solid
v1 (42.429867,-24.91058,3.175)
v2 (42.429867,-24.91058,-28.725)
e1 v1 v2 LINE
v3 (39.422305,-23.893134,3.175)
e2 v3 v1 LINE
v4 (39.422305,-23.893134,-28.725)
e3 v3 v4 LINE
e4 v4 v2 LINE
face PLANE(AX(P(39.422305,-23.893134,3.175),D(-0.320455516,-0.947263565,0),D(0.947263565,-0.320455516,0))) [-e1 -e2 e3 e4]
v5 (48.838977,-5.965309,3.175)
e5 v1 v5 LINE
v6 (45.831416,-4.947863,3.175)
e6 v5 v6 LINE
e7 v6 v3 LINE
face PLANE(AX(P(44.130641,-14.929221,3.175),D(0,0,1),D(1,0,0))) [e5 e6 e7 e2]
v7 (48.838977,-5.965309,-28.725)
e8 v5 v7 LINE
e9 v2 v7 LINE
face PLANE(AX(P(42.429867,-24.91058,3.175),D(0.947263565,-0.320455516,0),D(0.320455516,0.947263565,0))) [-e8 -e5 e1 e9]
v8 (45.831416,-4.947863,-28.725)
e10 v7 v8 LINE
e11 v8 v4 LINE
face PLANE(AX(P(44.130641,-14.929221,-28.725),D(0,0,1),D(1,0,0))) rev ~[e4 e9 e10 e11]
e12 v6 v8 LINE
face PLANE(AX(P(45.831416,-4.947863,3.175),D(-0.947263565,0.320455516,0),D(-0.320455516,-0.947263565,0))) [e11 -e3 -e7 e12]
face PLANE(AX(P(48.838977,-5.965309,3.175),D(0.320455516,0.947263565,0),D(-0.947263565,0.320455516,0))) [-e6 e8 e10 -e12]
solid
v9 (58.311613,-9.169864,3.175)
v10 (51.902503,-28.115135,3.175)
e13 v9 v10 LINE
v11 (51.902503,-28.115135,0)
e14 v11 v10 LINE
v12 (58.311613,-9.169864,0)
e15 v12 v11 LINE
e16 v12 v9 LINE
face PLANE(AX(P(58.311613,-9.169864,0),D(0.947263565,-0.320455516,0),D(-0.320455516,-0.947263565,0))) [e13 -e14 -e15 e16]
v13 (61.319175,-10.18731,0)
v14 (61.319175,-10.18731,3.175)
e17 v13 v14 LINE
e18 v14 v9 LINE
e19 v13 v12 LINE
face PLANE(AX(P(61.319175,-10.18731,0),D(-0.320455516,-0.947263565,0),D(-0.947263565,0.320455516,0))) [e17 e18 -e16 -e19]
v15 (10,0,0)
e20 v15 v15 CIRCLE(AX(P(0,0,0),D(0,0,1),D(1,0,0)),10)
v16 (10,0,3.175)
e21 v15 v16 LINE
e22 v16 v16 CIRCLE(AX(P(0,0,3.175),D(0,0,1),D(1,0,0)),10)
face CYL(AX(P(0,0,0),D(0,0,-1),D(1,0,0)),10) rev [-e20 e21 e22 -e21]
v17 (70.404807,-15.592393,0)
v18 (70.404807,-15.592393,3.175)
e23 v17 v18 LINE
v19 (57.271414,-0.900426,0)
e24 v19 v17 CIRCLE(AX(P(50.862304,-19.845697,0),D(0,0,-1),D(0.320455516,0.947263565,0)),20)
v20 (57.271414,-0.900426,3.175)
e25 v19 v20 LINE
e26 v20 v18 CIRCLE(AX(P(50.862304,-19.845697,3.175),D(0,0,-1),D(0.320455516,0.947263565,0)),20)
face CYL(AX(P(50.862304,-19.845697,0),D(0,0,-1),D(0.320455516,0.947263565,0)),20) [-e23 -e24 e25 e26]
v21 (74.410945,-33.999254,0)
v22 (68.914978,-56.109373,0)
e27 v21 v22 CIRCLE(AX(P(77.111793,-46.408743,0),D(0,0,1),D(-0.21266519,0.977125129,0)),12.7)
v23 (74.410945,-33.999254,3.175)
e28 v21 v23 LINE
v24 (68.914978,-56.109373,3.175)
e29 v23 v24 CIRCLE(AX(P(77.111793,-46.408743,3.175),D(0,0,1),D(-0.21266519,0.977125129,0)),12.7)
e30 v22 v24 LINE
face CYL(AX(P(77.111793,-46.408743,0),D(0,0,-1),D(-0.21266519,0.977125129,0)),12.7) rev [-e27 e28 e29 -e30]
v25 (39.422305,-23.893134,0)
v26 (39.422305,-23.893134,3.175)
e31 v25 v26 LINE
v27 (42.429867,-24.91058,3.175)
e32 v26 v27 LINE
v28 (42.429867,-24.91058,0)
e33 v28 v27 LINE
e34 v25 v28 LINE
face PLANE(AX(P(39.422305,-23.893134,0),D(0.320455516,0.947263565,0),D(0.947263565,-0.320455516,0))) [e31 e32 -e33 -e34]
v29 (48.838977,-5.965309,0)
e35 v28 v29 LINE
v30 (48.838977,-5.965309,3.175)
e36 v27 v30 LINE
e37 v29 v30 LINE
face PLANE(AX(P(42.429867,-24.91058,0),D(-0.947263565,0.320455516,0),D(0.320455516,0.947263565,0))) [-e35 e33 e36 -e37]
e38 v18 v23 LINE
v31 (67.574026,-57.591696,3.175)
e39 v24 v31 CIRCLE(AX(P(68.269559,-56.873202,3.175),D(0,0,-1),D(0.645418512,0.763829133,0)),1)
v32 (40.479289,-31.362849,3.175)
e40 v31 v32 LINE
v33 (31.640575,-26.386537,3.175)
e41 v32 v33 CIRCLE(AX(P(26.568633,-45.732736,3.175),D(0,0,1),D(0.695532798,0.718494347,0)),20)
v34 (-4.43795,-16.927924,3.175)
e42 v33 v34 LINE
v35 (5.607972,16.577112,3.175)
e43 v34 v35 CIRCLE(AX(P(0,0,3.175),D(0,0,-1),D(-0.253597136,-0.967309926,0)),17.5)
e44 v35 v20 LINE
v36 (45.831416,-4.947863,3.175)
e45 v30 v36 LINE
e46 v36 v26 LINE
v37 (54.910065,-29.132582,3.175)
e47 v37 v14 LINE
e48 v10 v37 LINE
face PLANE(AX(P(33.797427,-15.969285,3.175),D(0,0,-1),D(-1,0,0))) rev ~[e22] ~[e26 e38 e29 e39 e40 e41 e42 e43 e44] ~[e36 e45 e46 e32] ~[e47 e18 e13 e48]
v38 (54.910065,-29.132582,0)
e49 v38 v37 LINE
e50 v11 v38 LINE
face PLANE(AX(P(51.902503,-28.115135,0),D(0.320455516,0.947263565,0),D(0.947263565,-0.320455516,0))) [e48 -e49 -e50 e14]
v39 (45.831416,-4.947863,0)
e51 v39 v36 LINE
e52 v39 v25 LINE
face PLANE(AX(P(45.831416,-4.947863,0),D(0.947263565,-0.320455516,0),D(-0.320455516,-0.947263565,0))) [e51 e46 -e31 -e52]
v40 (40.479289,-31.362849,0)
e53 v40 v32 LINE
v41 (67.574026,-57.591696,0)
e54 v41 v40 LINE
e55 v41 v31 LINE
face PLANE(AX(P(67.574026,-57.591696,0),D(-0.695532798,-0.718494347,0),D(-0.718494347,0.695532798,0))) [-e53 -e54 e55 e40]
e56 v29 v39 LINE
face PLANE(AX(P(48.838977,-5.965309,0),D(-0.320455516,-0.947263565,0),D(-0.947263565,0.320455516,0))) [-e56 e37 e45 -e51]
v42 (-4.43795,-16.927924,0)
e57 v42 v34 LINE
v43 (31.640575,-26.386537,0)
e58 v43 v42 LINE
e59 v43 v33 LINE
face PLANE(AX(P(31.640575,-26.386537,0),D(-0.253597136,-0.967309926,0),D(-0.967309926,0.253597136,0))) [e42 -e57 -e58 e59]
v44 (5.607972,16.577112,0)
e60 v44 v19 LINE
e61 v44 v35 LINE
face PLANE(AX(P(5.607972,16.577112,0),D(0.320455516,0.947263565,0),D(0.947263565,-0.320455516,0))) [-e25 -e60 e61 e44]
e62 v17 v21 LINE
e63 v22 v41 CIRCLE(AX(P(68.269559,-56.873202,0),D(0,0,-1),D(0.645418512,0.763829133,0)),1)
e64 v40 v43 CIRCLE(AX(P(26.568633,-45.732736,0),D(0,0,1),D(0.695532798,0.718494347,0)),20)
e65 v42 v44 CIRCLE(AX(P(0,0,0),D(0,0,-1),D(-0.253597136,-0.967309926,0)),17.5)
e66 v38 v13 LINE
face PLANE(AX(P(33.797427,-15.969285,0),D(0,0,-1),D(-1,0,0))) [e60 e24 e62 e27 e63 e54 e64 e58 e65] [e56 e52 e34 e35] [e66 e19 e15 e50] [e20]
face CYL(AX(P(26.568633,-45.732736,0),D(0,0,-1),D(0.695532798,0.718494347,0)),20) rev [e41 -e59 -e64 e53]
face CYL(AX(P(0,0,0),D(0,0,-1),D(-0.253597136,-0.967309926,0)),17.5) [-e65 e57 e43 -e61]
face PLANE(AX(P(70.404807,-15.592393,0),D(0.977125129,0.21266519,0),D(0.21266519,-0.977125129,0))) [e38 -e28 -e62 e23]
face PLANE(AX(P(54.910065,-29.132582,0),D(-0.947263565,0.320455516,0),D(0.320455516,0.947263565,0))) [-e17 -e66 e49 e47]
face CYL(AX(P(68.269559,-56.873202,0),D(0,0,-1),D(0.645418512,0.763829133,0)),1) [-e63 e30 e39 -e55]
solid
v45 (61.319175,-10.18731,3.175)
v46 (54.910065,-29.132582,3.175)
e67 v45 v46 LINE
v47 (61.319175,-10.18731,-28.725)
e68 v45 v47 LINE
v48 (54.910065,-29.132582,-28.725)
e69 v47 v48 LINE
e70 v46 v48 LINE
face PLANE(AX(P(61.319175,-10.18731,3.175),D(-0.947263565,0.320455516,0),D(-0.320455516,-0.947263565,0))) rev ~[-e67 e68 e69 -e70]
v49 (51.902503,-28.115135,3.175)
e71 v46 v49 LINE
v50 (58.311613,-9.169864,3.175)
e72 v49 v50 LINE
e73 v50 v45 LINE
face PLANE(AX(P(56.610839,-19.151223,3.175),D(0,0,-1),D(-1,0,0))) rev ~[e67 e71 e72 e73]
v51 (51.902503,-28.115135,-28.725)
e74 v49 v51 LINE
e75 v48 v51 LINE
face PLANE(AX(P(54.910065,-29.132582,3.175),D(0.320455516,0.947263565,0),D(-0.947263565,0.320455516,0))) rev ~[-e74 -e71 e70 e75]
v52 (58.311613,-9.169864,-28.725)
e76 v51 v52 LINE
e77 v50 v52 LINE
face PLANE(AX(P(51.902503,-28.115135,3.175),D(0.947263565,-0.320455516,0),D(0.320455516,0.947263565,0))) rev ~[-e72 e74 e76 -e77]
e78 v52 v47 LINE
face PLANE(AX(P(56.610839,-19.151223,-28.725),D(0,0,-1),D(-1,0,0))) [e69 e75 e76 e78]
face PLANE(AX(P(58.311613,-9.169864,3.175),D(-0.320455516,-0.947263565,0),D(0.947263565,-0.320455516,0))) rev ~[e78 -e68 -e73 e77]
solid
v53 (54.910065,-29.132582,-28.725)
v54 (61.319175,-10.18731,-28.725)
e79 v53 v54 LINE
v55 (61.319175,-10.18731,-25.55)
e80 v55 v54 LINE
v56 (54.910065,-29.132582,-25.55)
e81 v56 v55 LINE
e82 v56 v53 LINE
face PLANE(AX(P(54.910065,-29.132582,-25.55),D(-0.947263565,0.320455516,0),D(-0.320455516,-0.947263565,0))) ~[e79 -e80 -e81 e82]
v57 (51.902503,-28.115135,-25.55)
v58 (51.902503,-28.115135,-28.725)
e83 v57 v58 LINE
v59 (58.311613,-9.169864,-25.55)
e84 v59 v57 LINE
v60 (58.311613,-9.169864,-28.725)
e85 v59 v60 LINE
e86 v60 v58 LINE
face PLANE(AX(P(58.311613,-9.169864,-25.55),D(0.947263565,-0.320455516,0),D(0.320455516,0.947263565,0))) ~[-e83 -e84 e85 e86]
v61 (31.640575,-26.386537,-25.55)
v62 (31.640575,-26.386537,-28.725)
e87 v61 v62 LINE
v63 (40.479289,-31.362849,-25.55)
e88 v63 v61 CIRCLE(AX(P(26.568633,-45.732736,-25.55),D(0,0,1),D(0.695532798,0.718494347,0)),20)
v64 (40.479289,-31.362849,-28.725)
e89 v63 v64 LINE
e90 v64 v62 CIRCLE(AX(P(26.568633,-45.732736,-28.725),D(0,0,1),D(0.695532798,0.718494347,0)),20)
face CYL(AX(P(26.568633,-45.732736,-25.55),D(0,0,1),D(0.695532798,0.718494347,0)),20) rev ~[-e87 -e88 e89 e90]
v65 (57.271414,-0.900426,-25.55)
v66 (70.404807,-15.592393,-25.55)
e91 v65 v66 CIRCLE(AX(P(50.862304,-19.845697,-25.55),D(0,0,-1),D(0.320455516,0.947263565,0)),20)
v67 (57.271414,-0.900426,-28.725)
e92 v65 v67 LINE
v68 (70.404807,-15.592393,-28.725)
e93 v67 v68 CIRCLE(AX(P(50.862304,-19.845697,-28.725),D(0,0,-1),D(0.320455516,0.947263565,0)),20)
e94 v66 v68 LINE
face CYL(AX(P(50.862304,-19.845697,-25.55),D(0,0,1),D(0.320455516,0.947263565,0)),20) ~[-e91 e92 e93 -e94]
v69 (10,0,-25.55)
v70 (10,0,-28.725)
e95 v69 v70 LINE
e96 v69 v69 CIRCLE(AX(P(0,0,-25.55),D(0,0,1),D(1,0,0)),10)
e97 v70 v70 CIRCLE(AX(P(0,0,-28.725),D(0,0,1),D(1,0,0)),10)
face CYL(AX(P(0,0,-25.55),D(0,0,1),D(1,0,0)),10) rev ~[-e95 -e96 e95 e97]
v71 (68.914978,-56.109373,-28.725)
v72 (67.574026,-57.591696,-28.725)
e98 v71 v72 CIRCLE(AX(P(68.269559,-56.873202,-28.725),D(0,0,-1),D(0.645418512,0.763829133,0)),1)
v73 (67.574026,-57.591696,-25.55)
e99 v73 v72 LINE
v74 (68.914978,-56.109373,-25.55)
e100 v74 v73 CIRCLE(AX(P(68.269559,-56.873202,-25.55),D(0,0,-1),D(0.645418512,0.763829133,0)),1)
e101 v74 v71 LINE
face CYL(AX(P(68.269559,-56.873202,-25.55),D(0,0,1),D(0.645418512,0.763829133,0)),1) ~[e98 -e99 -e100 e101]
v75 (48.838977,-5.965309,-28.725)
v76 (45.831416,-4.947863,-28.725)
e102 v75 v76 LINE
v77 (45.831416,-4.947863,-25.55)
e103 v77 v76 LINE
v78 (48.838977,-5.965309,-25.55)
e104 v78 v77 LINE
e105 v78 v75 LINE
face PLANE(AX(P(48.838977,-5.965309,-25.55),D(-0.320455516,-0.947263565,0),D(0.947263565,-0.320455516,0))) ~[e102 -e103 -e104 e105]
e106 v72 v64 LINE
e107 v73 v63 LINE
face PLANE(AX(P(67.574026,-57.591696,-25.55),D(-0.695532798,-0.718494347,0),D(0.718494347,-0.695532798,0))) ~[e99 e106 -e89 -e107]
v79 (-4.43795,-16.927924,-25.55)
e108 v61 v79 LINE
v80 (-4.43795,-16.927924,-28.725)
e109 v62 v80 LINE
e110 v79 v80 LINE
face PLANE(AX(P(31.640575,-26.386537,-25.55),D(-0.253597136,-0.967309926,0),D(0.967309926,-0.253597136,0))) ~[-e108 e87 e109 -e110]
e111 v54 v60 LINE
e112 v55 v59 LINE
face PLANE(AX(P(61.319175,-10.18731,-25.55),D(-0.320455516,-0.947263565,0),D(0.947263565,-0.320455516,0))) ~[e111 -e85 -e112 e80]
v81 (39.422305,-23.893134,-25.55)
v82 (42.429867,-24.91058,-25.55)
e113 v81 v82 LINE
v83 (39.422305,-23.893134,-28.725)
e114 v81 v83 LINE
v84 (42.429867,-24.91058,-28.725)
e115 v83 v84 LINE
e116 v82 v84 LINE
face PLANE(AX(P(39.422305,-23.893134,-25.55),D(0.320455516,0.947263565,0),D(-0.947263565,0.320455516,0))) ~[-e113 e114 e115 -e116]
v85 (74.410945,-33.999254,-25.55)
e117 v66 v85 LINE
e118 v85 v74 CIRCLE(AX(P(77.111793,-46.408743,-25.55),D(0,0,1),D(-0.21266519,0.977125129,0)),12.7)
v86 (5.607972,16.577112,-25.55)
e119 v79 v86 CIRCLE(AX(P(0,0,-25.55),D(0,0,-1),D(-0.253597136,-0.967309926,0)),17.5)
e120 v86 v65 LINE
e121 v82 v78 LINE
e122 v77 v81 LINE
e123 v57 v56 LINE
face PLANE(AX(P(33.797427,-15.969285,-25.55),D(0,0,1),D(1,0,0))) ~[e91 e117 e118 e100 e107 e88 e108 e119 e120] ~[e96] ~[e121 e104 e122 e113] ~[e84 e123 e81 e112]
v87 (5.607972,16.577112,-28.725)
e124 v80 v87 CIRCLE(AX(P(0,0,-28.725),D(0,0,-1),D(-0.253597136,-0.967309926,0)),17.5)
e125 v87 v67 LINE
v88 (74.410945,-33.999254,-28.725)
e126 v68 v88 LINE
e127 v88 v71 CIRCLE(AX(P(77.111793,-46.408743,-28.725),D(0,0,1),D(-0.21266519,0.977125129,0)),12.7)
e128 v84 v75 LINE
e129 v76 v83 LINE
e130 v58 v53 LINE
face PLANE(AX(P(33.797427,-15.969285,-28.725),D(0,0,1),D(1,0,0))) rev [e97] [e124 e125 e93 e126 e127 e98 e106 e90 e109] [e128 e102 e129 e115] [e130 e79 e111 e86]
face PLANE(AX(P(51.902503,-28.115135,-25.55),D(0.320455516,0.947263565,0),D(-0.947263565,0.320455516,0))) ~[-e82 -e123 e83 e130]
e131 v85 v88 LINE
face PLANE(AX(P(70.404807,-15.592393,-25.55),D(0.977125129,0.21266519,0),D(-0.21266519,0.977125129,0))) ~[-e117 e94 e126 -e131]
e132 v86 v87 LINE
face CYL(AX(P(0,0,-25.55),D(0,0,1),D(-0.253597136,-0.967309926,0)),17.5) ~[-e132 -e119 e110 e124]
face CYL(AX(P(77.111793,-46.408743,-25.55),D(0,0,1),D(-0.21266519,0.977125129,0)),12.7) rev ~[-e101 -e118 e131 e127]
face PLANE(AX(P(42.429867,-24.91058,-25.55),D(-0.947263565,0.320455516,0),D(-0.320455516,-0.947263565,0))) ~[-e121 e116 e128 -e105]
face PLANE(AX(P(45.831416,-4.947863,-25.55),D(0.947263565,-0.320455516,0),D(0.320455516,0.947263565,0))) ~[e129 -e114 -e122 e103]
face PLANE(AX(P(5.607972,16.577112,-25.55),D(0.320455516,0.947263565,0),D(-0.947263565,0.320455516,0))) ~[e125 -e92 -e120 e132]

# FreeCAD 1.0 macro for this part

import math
import FreeCAD as App
import Part
import Sketcher
Q = App.Units.Quantity

doc = App.newDocument("Part")
params = doc.addObject("Spreadsheet::Sheet", "Params")
for row, (alias, value) in enumerate([
    ("sketch1_diameter", "20 mm"),
    ("sketch1_radius", "20 mm"),
    ("sketch1_radius2", "1 mm"),
    ("sketch1_radius3", "17.5 mm"),
    ("sketch1_radius4", "12.7 mm"),
    ("pad1_length", "3.175 mm"),
    ("sketch2_length", "20 mm"),
    ("pad2_length", "31.9 mm"),
    ("sketch3_length", "20 mm"),
    ("pad3_length", "31.9 mm"),
], start=1):
    params.set(f"A{row}", alias)
    params.set(f"B{row}", "=" + value)
    params.setAlias(f"B{row}", alias)

body = doc.addObject("PartDesign::Body", "Body")

# Sketch on XY plane
sketch1 = doc.addObject("Sketcher::SketchObject", "Sketch")
body.addObject(sketch1)
sketch1.AttachmentSupport = (doc.XY_Plane, [""])
sketch1.MapMode = "FlatFace"
sketch1.addGeometry(Part.LineSegment(App.Vector(57.3, -0.9, 0), App.Vector(5.6, 16.6, 0)), False)
sketch1.addGeometry(Part.ArcOfCircle(Part.Circle(App.Vector(0, 0, 0), App.Vector(0, 0, 1), 17.5), math.radians(71), math.radians(255)), False)
sketch1.addGeometry(Part.LineSegment(App.Vector(-4.4, -16.9, 0), App.Vector(31.6, -26.4, 0)), False)
sketch1.addGeometry(Part.ArcOfCircle(Part.Circle(App.Vector(26.6, -45.7, 0), App.Vector(0, 0, 1), 20), math.radians(46), math.radians(75)), False)
sketch1.addGeometry(Part.LineSegment(App.Vector(40.5, -31.4, 0), App.Vector(67.6, -57.6, 0)), False)
sketch1.addGeometry(Part.ArcOfCircle(Part.Circle(App.Vector(68.3, -56.9, 0), App.Vector(0, 0, 1), 1), math.radians(-134), math.radians(50)), False)
sketch1.addGeometry(Part.ArcOfCircle(Part.Circle(App.Vector(77.1, -46.4, 0), App.Vector(0, 0, 1), 12.7), math.radians(102), math.radians(230)), False)
sketch1.addGeometry(Part.LineSegment(App.Vector(74.4, -34, 0), App.Vector(70.4, -15.6, 0)), False)
sketch1.addGeometry(Part.ArcOfCircle(Part.Circle(App.Vector(50.9, -19.8, 0), App.Vector(0, 0, 1), 20), math.radians(12), math.radians(71)), False)
sketch1.addGeometry(Part.LineSegment(App.Vector(58.3, -9.2, 0), App.Vector(61.3, -10.2, 0)), False)
sketch1.addGeometry(Part.LineSegment(App.Vector(61.3, -10.2, 0), App.Vector(54.9, -29.1, 0)), False)
sketch1.addGeometry(Part.LineSegment(App.Vector(54.9, -29.1, 0), App.Vector(51.9, -28.1, 0)), False)
sketch1.addGeometry(Part.LineSegment(App.Vector(51.9, -28.1, 0), App.Vector(58.3, -9.2, 0)), False)
sketch1.addGeometry(Part.LineSegment(App.Vector(45.8, -4.9, 0), App.Vector(48.8, -6, 0)), False)
sketch1.addGeometry(Part.LineSegment(App.Vector(48.8, -6, 0), App.Vector(42.4, -24.9, 0)), False)
sketch1.addGeometry(Part.LineSegment(App.Vector(42.4, -24.9, 0), App.Vector(39.4, -23.9, 0)), False)
sketch1.addGeometry(Part.LineSegment(App.Vector(39.4, -23.9, 0), App.Vector(45.8, -4.9, 0)), False)
sketch1.addGeometry(Part.Circle(App.Vector(0, 0, 0), App.Vector(0, 0, 1), 10), False)
sketch1.addConstraint(Sketcher.Constraint("Tangent", 0, 2, 1, 1))
sketch1.addConstraint(Sketcher.Constraint("Tangent", 1, 2, 2, 1))
sketch1.addConstraint(Sketcher.Constraint("Tangent", 2, 2, 3, 2))
sketch1.addConstraint(Sketcher.Constraint("Tangent", 3, 1, 4, 1))
sketch1.addConstraint(Sketcher.Constraint("Tangent", 4, 2, 5, 1))
sketch1.addConstraint(Sketcher.Constraint("Tangent", 5, 2, 6, 2))
sketch1.addConstraint(Sketcher.Constraint("Coincident", 6, 1, 7, 1))
sketch1.addConstraint(Sketcher.Constraint("Tangent", 7, 2, 8, 1))
sketch1.addConstraint(Sketcher.Constraint("Tangent", 8, 2, 0, 1))
sketch1.addConstraint(Sketcher.Constraint("Coincident", 9, 2, 10, 1))
sketch1.addConstraint(Sketcher.Constraint("Coincident", 10, 2, 11, 1))
sketch1.addConstraint(Sketcher.Constraint("Coincident", 11, 2, 12, 1))
sketch1.addConstraint(Sketcher.Constraint("Coincident", 12, 2, 9, 1))
sketch1.addConstraint(Sketcher.Constraint("Coincident", 13, 2, 14, 1))
sketch1.addConstraint(Sketcher.Constraint("Coincident", 14, 2, 15, 1))
sketch1.addConstraint(Sketcher.Constraint("Coincident", 15, 2, 16, 1))
sketch1.addConstraint(Sketcher.Constraint("Coincident", 16, 2, 13, 1))
sketch1.addConstraint(Sketcher.Constraint("Coincident", 1, 3, -1, 1))
sketch1.addConstraint(Sketcher.Constraint("Coincident", 17, 3, -1, 1))
sketch1.addConstraint(Sketcher.Constraint("Equal", 3, 8))
sketch1.addConstraint(Sketcher.Constraint("Parallel", 0, 9))
sketch1.addConstraint(Sketcher.Constraint("Perpendicular", 9, 10))
sketch1.addConstraint(Sketcher.Constraint("Perpendicular", 10, 11))
sketch1.addConstraint(Sketcher.Constraint("Perpendicular", 11, 12))
sketch1.addConstraint(Sketcher.Constraint("Perpendicular", 12, 13))
sketch1.addConstraint(Sketcher.Constraint("Perpendicular", 13, 14))
sketch1.addConstraint(Sketcher.Constraint("Perpendicular", 14, 15))
sketch1.addConstraint(Sketcher.Constraint("Perpendicular", 15, 16))
sketch1.addConstraint(Sketcher.Constraint("Equal", 11, 13))
sketch1.addConstraint(Sketcher.Constraint("Equal", 12, 14))
sketch1.addConstraint(Sketcher.Constraint("Diameter", 17, Q("20 mm")))
sketch1.addConstraint(Sketcher.Constraint("Radius", 3, Q("20 mm")))
sketch1.addConstraint(Sketcher.Constraint("Radius", 5, Q("1 mm")))
sketch1.addConstraint(Sketcher.Constraint("Radius", 1, Q("17.5 mm")))
sketch1.addConstraint(Sketcher.Constraint("Radius", 6, Q("12.7 mm")))
sketch1.addConstraint(Sketcher.Constraint("Distance", 10, Q("20 mm")))
sketch1.addConstraint(Sketcher.Constraint("DistanceX", 15, 2, 8, 3, Q("11.439999 mm")))
sketch1.addConstraint(Sketcher.Constraint("Distance", 9, Q("3.175 mm")))
sketch1.addConstraint(Sketcher.Constraint("DistanceY", 4, 2, 8, 3, Q("37.745999 mm")))
sketch1.addConstraint(Sketcher.Constraint("DistanceY", 9, 2, 13, 2, Q("4.222001 mm")))
sketch1.addConstraint(Sketcher.Constraint("DistanceY", 5, 3, -1, 1, Q("56.873202 mm")))
sketch1.addConstraint(Sketcher.Constraint("DistanceY", 3, 3, 2, 2, Q("19.346199 mm")))
sketch1.addConstraint(Sketcher.Constraint("DistanceX", 8, 3, 11, 2, Q("1.040199 mm")))
sketch1.addConstraint(Sketcher.Constraint("DistanceY", 11, 2, 2, 2, Q("1.728598 mm")))
sketch1.addConstraint(Sketcher.Constraint("Distance", 0, Q("54.539671 mm")))
sketch1.addConstraint(Sketcher.Constraint("Distance", 4, Q("37.71044 mm")))
sketch1.addConstraint(Sketcher.Constraint("Distance", 7, Q("18.837772 mm")))
sketch1.addConstraint(Sketcher.Constraint("DistanceX", -1, 1, 5, 3, Q("68.269559 mm")))
sketch1.addConstraint(Sketcher.Constraint("DistanceY", 5, 3, 6, 3, Q("10.464459 mm")))
sketch1.setExpression("Constraints[30]", "Params.sketch1_diameter")
sketch1.setExpression("Constraints[31]", "Params.sketch1_radius")
sketch1.setExpression("Constraints[32]", "Params.sketch1_radius2")
sketch1.setExpression("Constraints[33]", "Params.sketch1_radius3")
sketch1.setExpression("Constraints[34]", "Params.sketch1_radius4")
pad1 = doc.addObject("PartDesign::Pad", "Pad")
body.addObject(pad1)
pad1.Profile = sketch1
pad1.setExpression("Length", "Params.pad1_length")
body2 = doc.addObject("PartDesign::Body", "Body001")
doc.recompute()

mirroring = doc.addObject("Part::Mirroring", "Mirroring")
mirroring.Source = body
mirroring.Base = App.Vector(0, 0, -12.775)
mirroring.Normal = App.Vector(0, 0, -1)
body2.BaseFeature = mirroring
doc.recompute()
body3 = doc.addObject("PartDesign::Body", "Body002")

# Sketch on XY plane
sketch2 = doc.addObject("Sketcher::SketchObject", "Sketch001")
body3.addObject(sketch2)
sketch2.AttachmentSupport = (doc.getObject("XY_Plane002"), [""])
sketch2.MapMode = "FlatFace"
sketch2.AttachmentOffset = App.Placement(App.Vector(0, 0, 3.175), App.Rotation())
sketch2.addGeometry(Part.LineSegment(App.Vector(45.8, -4.9, 0), App.Vector(39.4, -23.9, 0)), False)
sketch2.addGeometry(Part.LineSegment(App.Vector(39.4, -23.9, 0), App.Vector(42.4, -24.9, 0)), False)
sketch2.addGeometry(Part.LineSegment(App.Vector(42.4, -24.9, 0), App.Vector(48.8, -6, 0)), False)
sketch2.addGeometry(Part.LineSegment(App.Vector(48.8, -6, 0), App.Vector(45.8, -4.9, 0)), False)
sketch2.addConstraint(Sketcher.Constraint("Coincident", 0, 2, 1, 1))
sketch2.addConstraint(Sketcher.Constraint("Coincident", 1, 2, 2, 1))
sketch2.addConstraint(Sketcher.Constraint("Coincident", 2, 2, 3, 1))
sketch2.addConstraint(Sketcher.Constraint("Coincident", 3, 2, 0, 1))
sketch2.addConstraint(Sketcher.Constraint("Perpendicular", 0, 1))
sketch2.addConstraint(Sketcher.Constraint("Perpendicular", 1, 2))
sketch2.addConstraint(Sketcher.Constraint("Perpendicular", 2, 3))
sketch2.addConstraint(Sketcher.Constraint("Distance", 0, Q("20 mm")))
sketch2.addConstraint(Sketcher.Constraint("Distance", 1, Q("3.175 mm")))
sketch2.addConstraint(Sketcher.Constraint("DistanceY", 1, 2, -1, 1, Q("24.91058 mm")))
sketch2.addConstraint(Sketcher.Constraint("DistanceY", 2, 2, -1, 1, Q("5.965309 mm")))
sketch2.addConstraint(Sketcher.Constraint("DistanceX", -1, 1, 0, 2, Q("39.422305 mm")))
sketch2.setExpression("Constraints[7]", "Params.sketch2_length")
pad2 = doc.addObject("PartDesign::Pad", "Pad001")
body3.addObject(pad2)
pad2.Profile = sketch2
pad2.setExpression("Length", "Params.pad2_length")
pad2.Reversed = True
body4 = doc.addObject("PartDesign::Body", "Body003")

# Sketch on XY plane
sketch3 = doc.addObject("Sketcher::SketchObject", "Sketch002")
body4.addObject(sketch3)
sketch3.AttachmentSupport = (doc.getObject("XY_Plane003"), [""])
sketch3.MapMode = "FlatFace"
sketch3.AttachmentOffset = App.Placement(App.Vector(0, 0, 3.175), App.Rotation())
sketch3.addGeometry(Part.LineSegment(App.Vector(58.3, -9.2, 0), App.Vector(51.9, -28.1, 0)), False)
sketch3.addGeometry(Part.LineSegment(App.Vector(51.9, -28.1, 0), App.Vector(54.9, -29.1, 0)), False)
sketch3.addGeometry(Part.LineSegment(App.Vector(54.9, -29.1, 0), App.Vector(61.3, -10.2, 0)), False)
sketch3.addGeometry(Part.LineSegment(App.Vector(61.3, -10.2, 0), App.Vector(58.3, -9.2, 0)), False)
sketch3.addConstraint(Sketcher.Constraint("Coincident", 0, 2, 1, 1))
sketch3.addConstraint(Sketcher.Constraint("Coincident", 1, 2, 2, 1))
sketch3.addConstraint(Sketcher.Constraint("Coincident", 2, 2, 3, 1))
sketch3.addConstraint(Sketcher.Constraint("Coincident", 3, 2, 0, 1))
sketch3.addConstraint(Sketcher.Constraint("Perpendicular", 0, 1))
sketch3.addConstraint(Sketcher.Constraint("Perpendicular", 1, 2))
sketch3.addConstraint(Sketcher.Constraint("Perpendicular", 2, 3))
sketch3.addConstraint(Sketcher.Constraint("Distance", 0, Q("20 mm")))
sketch3.addConstraint(Sketcher.Constraint("Distance", 1, Q("3.175 mm")))
sketch3.addConstraint(Sketcher.Constraint("DistanceY", 1, 2, -1, 1, Q("29.132582 mm")))
sketch3.addConstraint(Sketcher.Constraint("DistanceY", 2, 2, -1, 1, Q("10.18731 mm")))
sketch3.addConstraint(Sketcher.Constraint("DistanceX", -1, 1, 0, 2, Q("51.902503 mm")))
sketch3.setExpression("Constraints[7]", "Params.sketch3_length")
pad3 = doc.addObject("PartDesign::Pad", "Pad002")
body4.addObject(pad3)
pad3.Profile = sketch3
pad3.setExpression("Length", "Params.pad3_length")
pad3.Reversed = True
mirroring.Visibility = False

doc.recompute()
